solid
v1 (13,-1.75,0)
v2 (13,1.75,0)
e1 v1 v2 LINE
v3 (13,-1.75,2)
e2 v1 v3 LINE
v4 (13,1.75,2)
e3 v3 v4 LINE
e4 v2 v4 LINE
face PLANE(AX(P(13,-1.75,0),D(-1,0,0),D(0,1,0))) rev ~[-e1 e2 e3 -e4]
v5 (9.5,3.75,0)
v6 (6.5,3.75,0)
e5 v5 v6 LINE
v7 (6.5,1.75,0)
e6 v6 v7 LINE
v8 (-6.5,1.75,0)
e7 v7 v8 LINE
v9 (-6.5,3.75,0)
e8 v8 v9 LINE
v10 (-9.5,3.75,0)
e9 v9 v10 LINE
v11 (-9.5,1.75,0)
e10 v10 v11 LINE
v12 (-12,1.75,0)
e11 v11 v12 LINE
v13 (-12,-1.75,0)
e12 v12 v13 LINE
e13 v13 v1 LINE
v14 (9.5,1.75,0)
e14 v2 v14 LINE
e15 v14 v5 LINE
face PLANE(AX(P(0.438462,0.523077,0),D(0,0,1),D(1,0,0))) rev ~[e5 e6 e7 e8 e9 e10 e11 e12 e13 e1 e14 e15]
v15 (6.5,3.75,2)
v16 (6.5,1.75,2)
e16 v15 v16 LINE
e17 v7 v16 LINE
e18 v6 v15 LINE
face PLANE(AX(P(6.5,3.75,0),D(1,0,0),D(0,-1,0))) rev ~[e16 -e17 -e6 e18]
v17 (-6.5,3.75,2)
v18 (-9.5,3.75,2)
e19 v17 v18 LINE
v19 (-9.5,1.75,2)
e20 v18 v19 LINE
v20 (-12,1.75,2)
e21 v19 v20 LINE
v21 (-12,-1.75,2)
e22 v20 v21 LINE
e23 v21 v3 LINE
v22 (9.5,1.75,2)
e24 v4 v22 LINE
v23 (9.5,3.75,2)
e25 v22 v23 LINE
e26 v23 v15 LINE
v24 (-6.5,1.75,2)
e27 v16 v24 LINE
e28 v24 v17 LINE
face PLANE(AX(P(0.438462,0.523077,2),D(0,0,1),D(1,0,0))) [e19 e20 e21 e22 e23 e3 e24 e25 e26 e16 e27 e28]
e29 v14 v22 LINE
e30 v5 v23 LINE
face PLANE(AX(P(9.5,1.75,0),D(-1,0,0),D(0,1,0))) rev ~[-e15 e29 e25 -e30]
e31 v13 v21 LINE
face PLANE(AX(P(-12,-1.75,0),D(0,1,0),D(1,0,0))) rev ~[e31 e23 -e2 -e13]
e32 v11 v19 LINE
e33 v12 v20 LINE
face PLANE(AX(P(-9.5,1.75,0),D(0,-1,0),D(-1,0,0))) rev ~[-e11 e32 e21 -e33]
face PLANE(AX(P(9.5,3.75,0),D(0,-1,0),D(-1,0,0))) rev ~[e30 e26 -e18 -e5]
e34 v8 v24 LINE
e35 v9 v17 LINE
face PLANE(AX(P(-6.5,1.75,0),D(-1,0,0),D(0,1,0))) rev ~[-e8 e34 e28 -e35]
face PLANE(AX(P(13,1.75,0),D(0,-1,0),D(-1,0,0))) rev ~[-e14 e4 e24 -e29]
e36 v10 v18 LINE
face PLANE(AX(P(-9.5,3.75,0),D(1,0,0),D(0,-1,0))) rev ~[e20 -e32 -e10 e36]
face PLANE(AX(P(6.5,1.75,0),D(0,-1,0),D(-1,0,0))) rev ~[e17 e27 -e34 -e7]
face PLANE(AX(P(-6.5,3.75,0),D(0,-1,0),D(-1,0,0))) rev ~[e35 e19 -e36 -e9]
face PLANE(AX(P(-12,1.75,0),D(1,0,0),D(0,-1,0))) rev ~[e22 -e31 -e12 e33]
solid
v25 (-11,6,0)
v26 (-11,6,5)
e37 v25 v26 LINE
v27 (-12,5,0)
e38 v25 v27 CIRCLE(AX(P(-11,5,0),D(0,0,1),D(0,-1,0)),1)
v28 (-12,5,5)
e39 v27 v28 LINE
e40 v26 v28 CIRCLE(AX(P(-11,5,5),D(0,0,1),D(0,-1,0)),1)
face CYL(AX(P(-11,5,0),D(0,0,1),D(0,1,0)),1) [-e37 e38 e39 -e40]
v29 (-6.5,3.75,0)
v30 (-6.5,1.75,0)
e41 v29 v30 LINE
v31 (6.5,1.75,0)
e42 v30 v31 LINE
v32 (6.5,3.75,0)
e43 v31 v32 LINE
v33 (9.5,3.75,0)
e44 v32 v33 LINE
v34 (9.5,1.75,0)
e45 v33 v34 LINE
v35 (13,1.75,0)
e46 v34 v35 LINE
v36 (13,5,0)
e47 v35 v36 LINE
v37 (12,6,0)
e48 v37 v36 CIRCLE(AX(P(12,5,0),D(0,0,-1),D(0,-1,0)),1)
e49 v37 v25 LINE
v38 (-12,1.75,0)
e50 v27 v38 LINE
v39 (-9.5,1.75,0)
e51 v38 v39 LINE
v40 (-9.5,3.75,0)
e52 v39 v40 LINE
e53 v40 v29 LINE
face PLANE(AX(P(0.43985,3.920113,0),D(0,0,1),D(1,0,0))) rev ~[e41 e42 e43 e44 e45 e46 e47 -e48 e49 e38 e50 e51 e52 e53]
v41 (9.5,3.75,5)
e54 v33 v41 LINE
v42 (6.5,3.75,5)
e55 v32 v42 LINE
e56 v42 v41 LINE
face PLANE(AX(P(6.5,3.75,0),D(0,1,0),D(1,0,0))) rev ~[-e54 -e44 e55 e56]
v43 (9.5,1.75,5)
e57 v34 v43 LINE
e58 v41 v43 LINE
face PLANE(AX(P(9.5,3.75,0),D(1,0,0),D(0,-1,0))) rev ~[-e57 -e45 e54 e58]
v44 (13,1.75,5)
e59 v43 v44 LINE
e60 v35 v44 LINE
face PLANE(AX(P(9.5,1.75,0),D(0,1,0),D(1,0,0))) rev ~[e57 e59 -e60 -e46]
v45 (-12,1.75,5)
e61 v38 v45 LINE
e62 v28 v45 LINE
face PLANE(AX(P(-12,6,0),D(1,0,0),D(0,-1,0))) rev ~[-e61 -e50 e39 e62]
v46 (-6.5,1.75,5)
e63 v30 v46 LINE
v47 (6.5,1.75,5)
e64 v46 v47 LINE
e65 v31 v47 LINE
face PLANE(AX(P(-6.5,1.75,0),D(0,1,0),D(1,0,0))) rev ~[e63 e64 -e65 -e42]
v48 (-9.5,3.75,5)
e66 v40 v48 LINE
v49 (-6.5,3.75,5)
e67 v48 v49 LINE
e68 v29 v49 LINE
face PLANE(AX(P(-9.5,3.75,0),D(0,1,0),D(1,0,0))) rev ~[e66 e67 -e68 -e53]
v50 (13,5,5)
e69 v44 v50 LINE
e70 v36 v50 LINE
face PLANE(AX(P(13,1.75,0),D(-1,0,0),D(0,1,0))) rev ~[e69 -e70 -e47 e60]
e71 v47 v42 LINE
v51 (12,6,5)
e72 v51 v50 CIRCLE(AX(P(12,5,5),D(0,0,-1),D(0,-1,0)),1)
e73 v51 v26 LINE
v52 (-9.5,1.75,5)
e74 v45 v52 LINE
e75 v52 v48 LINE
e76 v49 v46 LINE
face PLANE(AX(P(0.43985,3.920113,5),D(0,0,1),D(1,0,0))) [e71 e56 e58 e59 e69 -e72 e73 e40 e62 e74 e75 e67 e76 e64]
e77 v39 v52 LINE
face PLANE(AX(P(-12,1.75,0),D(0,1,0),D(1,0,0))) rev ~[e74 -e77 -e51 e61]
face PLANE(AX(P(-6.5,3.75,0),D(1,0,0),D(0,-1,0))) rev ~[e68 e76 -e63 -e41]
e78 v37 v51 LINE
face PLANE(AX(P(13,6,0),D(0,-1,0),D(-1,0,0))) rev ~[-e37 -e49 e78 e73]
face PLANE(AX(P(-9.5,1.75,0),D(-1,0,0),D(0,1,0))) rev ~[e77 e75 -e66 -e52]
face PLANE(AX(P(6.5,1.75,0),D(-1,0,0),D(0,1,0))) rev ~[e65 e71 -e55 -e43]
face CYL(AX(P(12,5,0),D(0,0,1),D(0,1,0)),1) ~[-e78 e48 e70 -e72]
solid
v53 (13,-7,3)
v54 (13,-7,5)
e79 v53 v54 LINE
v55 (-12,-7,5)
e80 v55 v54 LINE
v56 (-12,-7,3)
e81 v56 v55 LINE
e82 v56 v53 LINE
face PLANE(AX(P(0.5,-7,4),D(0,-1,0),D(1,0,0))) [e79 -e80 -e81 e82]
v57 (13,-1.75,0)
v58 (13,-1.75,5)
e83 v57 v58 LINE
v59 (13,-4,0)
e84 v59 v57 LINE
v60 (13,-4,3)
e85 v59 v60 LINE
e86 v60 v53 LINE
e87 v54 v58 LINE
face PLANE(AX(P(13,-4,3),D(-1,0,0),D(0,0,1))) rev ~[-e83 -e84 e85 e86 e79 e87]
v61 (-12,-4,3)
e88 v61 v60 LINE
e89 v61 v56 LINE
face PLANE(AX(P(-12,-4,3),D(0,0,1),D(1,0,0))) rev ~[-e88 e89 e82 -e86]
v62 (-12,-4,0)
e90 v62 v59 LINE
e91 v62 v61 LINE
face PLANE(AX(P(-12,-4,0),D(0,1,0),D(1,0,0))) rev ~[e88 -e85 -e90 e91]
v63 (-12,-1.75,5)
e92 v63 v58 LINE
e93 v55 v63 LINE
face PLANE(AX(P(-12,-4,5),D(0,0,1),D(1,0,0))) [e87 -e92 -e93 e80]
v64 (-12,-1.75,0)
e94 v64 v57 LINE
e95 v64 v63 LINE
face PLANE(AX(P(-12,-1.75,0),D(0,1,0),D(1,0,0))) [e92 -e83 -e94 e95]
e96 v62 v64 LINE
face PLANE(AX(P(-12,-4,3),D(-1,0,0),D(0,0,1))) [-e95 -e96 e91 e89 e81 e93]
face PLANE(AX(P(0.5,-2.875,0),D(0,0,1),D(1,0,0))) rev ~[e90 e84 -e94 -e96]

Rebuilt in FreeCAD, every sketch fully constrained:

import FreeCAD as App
import Part
import Sketcher

V = App.Vector


def edges_at(feature, points):
    """Names of the edges that pass closest to the given points."""
    edges = feature.Shape.Edges
    near = lambda p: min(range(len(edges)), key=lambda i: edges[i].distToShape(Part.Vertex(*p))[0])
    return sorted({f"Edge{near(p) + 1}" for p in points})


def add_polygon(sketch, points):
    """Adds a closed chain of lines whose ends are joined by coincident constraints."""
    first, n = sketch.GeometryCount, len(points)
    for a, b in zip(points, points[1:] + points[:1]):
        sketch.addGeometry(Part.LineSegment(App.Vector(*a, 0), App.Vector(*b, 0)), False)
    for i in range(n):
        sketch.addConstraint(Sketcher.Constraint("Coincident", first + i, 2, first + (i + 1) % n, 1))

doc = App.newDocument("Part")
params = doc.addObject("Spreadsheet::Sheet", "Params")
for row, (alias, value) in enumerate([
    ("sketch1_width", "25 mm"),
    ("sketch1_width2", "3 mm"),
    ("sketch1_width3", "13 mm"),
    ("sketch1_height", "2 mm"),
    ("sketch1_width4", "2.5 mm"),
    ("pad1_length", "5 mm"),
    ("fillet_radius", "1 mm"),
    ("sketch2_width", "25 mm"),
    ("sketch2_height", "2 mm"),
    ("pad2_length", "3 mm"),
    ("sketch3_width", "25 mm"),
    ("sketch3_width2", "3 mm"),
    ("sketch3_width3", "13 mm"),
    ("sketch3_height", "2 mm"),
    ("sketch3_width4", "2.5 mm"),
    ("pad3_length", "2 mm"),
], start=1):
    params.set(f"A{row}", alias)
    params.set(f"B{row}", "=" + value)
    params.setAlias(f"B{row}", alias)

body = doc.addObject("PartDesign::Body", "Body")
body.AllowCompound = True

sketch1 = body.newObject("Sketcher::SketchObject", "Sketch")
sketch1.AttachmentSupport = (doc.getObject("XY_Plane"), [""])
sketch1.MapMode = "FlatFace"
add_polygon(sketch1, [(13, 6), (-12, 6), (-12, 1.75), (-9.5, 1.75), (-9.5, 3.75), (-6.5, 3.75), (-6.5, 1.75), (6.5, 1.75), (6.5, 3.75), (9.5, 3.75), (9.5, 1.75), (13, 1.75)])
add_polygon(sketch1, [(-12, -1.75), (-12, -4), (13, -4), (13, -1.75)])
sketch1.addConstraint([
    Sketcher.Constraint("Horizontal", 0),
    Sketcher.Constraint("Vertical", 1),
    Sketcher.Constraint("Horizontal", 2),
    Sketcher.Constraint("Vertical", 3),
    Sketcher.Constraint("Horizontal", 4),
    Sketcher.Constraint("Vertical", 5),
    Sketcher.Constraint("Horizontal", 6),
    Sketcher.Constraint("Vertical", 7),
    Sketcher.Constraint("Horizontal", 8),
    Sketcher.Constraint("Vertical", 9),
    Sketcher.Constraint("Horizontal", 10),
    Sketcher.Constraint("Vertical", 11),
    Sketcher.Constraint("Vertical", 12),
    Sketcher.Constraint("Horizontal", 13),
    Sketcher.Constraint("Vertical", 14),
    Sketcher.Constraint("Horizontal", 15),
    Sketcher.Constraint("Symmetric", 4, 2, 7, 2, -2),
    Sketcher.Constraint("Symmetric", 2, 2, 9, 2, -2),
    Sketcher.Constraint("Symmetric", 10, 2, 14, 2, -1),
    Sketcher.Constraint("Horizontal", 2, 2, 5, 2),
    Sketcher.Constraint("Vertical", 1, 2, 12, 2),
    Sketcher.Constraint("DistanceX", 0, 2, 0, 1, 25.0),
    Sketcher.Constraint("DistanceX", 4, 1, 4, 2, 3.0),
    Sketcher.Constraint("DistanceX", 6, 1, 6, 2, 13.0),
    Sketcher.Constraint("DistanceY", 3, 1, 3, 2, 2.0),
    Sketcher.Constraint("DistanceX", 2, 1, 2, 2, 2.5),
    Sketcher.Constraint("DistanceY", -1, 1, 0, 2, 6.0),
    Sketcher.Constraint("DistanceY", 12, 2, -1, 1, 4.0),
    Sketcher.Constraint("DistanceY", 1, 2, 1, 1, 4.25),
])
sketch1.setExpression("Constraints[37]", "Params.sketch1_width")
sketch1.setExpression("Constraints[38]", "Params.sketch1_width2")
sketch1.setExpression("Constraints[39]", "Params.sketch1_width3")
sketch1.setExpression("Constraints[40]", "Params.sketch1_height")
sketch1.setExpression("Constraints[41]", "Params.sketch1_width4")
pad1 = body.newObject("PartDesign::Pad", "Pad")
pad1.Profile = sketch1
pad1.setExpression("Length", "Params.pad1_length")
doc.recompute()

fillet = body.newObject("PartDesign::Fillet", "Fillet")
fillet.Base = (pad1, edges_at(pad1, [(13, 6, 2.5), (-12, 6, 2.5)]))
fillet.setExpression("Radius", "Params.fillet_radius")

sketch2 = body.newObject("Sketcher::SketchObject", "Sketch001")
sketch2.AttachmentSupport = (doc.getObject("XZ_Plane"), [""])
sketch2.MapMode = "FlatFace"
sketch2.AttachmentOffset = App.Placement(V(0, 0, 4), App.Rotation())
add_polygon(sketch2, [(-12, 5), (-12, 3), (13, 3), (13, 5)])
sketch2.addConstraint([
    Sketcher.Constraint("Vertical", 0),
    Sketcher.Constraint("Horizontal", 1),
    Sketcher.Constraint("Vertical", 2),
    Sketcher.Constraint("Horizontal", 3),
    Sketcher.Constraint("DistanceX", 1, 1, 1, 2, 25.0),
    Sketcher.Constraint("DistanceY", 0, 2, 0, 1, 2.0),
    Sketcher.Constraint("DistanceX", 0, 2, -1, 1, 12.0),
    Sketcher.Constraint("DistanceY", -1, 1, 0, 2, 3.0),
])
sketch2.setExpression("Constraints[8]", "Params.sketch2_width")
sketch2.setExpression("Constraints[9]", "Params.sketch2_height")
pad2 = body.newObject("PartDesign::Pad", "Pad001")
pad2.Profile = sketch2
pad2.setExpression("Length", "Params.pad2_length")
body2 = doc.addObject("PartDesign::Body", "Body001")

sketch3 = body2.newObject("Sketcher::SketchObject", "Sketch002")
sketch3.AttachmentSupport = (doc.getObject("XY_Plane001"), [""])
sketch3.MapMode = "FlatFace"
add_polygon(sketch3, [(-9.5, 1.75), (-12, 1.75), (-12, -1.75), (13, -1.75), (13, 1.75), (9.5, 1.75), (9.5, 3.75), (6.5, 3.75), (6.5, 1.75), (-6.5, 1.75), (-6.5, 3.75), (-9.5, 3.75)])
sketch3.addConstraint([
    Sketcher.Constraint("Horizontal", 0),
    Sketcher.Constraint("Vertical", 1),
    Sketcher.Constraint("Horizontal", 2),
    Sketcher.Constraint("Vertical", 3),
    Sketcher.Constraint("Horizontal", 4),
    Sketcher.Constraint("Vertical", 5),
    Sketcher.Constraint("Horizontal", 6),
    Sketcher.Constraint("Vertical", 7),
    Sketcher.Constraint("Horizontal", 8),
    Sketcher.Constraint("Vertical", 9),
    Sketcher.Constraint("Horizontal", 10),
    Sketcher.Constraint("Vertical", 11),
    Sketcher.Constraint("Symmetric", 6, 2, 9, 2, -2),
    Sketcher.Constraint("Symmetric", 4, 2, 11, 2, -2),
    Sketcher.Constraint("Horizontal", 4, 2, 7, 2),
    Sketcher.Constraint("Equal", 4, 1),
    Sketcher.Constraint("DistanceX", 2, 1, 2, 2, 25.0),
    Sketcher.Constraint("DistanceX", 6, 2, 6, 1, 3.0),
    Sketcher.Constraint("DistanceX", 8, 2, 8, 1, 13.0),
    Sketcher.Constraint("DistanceY", 5, 1, 5, 2, 2.0),
    Sketcher.Constraint("DistanceX", 0, 2, 0, 1, 2.5),
    Sketcher.Constraint("DistanceY", -1, 1, 0, 2, 1.75),
])
sketch3.setExpression("Constraints[28]", "Params.sketch3_width")
sketch3.setExpression("Constraints[29]", "Params.sketch3_width2")
sketch3.setExpression("Constraints[30]", "Params.sketch3_width3")
sketch3.setExpression("Constraints[31]", "Params.sketch3_height")
sketch3.setExpression("Constraints[32]", "Params.sketch3_width4")
pad3 = body2.newObject("PartDesign::Pad", "Pad002")
pad3.Profile = sketch3
pad3.setExpression("Length", "Params.pad3_length")

doc.recompute()
